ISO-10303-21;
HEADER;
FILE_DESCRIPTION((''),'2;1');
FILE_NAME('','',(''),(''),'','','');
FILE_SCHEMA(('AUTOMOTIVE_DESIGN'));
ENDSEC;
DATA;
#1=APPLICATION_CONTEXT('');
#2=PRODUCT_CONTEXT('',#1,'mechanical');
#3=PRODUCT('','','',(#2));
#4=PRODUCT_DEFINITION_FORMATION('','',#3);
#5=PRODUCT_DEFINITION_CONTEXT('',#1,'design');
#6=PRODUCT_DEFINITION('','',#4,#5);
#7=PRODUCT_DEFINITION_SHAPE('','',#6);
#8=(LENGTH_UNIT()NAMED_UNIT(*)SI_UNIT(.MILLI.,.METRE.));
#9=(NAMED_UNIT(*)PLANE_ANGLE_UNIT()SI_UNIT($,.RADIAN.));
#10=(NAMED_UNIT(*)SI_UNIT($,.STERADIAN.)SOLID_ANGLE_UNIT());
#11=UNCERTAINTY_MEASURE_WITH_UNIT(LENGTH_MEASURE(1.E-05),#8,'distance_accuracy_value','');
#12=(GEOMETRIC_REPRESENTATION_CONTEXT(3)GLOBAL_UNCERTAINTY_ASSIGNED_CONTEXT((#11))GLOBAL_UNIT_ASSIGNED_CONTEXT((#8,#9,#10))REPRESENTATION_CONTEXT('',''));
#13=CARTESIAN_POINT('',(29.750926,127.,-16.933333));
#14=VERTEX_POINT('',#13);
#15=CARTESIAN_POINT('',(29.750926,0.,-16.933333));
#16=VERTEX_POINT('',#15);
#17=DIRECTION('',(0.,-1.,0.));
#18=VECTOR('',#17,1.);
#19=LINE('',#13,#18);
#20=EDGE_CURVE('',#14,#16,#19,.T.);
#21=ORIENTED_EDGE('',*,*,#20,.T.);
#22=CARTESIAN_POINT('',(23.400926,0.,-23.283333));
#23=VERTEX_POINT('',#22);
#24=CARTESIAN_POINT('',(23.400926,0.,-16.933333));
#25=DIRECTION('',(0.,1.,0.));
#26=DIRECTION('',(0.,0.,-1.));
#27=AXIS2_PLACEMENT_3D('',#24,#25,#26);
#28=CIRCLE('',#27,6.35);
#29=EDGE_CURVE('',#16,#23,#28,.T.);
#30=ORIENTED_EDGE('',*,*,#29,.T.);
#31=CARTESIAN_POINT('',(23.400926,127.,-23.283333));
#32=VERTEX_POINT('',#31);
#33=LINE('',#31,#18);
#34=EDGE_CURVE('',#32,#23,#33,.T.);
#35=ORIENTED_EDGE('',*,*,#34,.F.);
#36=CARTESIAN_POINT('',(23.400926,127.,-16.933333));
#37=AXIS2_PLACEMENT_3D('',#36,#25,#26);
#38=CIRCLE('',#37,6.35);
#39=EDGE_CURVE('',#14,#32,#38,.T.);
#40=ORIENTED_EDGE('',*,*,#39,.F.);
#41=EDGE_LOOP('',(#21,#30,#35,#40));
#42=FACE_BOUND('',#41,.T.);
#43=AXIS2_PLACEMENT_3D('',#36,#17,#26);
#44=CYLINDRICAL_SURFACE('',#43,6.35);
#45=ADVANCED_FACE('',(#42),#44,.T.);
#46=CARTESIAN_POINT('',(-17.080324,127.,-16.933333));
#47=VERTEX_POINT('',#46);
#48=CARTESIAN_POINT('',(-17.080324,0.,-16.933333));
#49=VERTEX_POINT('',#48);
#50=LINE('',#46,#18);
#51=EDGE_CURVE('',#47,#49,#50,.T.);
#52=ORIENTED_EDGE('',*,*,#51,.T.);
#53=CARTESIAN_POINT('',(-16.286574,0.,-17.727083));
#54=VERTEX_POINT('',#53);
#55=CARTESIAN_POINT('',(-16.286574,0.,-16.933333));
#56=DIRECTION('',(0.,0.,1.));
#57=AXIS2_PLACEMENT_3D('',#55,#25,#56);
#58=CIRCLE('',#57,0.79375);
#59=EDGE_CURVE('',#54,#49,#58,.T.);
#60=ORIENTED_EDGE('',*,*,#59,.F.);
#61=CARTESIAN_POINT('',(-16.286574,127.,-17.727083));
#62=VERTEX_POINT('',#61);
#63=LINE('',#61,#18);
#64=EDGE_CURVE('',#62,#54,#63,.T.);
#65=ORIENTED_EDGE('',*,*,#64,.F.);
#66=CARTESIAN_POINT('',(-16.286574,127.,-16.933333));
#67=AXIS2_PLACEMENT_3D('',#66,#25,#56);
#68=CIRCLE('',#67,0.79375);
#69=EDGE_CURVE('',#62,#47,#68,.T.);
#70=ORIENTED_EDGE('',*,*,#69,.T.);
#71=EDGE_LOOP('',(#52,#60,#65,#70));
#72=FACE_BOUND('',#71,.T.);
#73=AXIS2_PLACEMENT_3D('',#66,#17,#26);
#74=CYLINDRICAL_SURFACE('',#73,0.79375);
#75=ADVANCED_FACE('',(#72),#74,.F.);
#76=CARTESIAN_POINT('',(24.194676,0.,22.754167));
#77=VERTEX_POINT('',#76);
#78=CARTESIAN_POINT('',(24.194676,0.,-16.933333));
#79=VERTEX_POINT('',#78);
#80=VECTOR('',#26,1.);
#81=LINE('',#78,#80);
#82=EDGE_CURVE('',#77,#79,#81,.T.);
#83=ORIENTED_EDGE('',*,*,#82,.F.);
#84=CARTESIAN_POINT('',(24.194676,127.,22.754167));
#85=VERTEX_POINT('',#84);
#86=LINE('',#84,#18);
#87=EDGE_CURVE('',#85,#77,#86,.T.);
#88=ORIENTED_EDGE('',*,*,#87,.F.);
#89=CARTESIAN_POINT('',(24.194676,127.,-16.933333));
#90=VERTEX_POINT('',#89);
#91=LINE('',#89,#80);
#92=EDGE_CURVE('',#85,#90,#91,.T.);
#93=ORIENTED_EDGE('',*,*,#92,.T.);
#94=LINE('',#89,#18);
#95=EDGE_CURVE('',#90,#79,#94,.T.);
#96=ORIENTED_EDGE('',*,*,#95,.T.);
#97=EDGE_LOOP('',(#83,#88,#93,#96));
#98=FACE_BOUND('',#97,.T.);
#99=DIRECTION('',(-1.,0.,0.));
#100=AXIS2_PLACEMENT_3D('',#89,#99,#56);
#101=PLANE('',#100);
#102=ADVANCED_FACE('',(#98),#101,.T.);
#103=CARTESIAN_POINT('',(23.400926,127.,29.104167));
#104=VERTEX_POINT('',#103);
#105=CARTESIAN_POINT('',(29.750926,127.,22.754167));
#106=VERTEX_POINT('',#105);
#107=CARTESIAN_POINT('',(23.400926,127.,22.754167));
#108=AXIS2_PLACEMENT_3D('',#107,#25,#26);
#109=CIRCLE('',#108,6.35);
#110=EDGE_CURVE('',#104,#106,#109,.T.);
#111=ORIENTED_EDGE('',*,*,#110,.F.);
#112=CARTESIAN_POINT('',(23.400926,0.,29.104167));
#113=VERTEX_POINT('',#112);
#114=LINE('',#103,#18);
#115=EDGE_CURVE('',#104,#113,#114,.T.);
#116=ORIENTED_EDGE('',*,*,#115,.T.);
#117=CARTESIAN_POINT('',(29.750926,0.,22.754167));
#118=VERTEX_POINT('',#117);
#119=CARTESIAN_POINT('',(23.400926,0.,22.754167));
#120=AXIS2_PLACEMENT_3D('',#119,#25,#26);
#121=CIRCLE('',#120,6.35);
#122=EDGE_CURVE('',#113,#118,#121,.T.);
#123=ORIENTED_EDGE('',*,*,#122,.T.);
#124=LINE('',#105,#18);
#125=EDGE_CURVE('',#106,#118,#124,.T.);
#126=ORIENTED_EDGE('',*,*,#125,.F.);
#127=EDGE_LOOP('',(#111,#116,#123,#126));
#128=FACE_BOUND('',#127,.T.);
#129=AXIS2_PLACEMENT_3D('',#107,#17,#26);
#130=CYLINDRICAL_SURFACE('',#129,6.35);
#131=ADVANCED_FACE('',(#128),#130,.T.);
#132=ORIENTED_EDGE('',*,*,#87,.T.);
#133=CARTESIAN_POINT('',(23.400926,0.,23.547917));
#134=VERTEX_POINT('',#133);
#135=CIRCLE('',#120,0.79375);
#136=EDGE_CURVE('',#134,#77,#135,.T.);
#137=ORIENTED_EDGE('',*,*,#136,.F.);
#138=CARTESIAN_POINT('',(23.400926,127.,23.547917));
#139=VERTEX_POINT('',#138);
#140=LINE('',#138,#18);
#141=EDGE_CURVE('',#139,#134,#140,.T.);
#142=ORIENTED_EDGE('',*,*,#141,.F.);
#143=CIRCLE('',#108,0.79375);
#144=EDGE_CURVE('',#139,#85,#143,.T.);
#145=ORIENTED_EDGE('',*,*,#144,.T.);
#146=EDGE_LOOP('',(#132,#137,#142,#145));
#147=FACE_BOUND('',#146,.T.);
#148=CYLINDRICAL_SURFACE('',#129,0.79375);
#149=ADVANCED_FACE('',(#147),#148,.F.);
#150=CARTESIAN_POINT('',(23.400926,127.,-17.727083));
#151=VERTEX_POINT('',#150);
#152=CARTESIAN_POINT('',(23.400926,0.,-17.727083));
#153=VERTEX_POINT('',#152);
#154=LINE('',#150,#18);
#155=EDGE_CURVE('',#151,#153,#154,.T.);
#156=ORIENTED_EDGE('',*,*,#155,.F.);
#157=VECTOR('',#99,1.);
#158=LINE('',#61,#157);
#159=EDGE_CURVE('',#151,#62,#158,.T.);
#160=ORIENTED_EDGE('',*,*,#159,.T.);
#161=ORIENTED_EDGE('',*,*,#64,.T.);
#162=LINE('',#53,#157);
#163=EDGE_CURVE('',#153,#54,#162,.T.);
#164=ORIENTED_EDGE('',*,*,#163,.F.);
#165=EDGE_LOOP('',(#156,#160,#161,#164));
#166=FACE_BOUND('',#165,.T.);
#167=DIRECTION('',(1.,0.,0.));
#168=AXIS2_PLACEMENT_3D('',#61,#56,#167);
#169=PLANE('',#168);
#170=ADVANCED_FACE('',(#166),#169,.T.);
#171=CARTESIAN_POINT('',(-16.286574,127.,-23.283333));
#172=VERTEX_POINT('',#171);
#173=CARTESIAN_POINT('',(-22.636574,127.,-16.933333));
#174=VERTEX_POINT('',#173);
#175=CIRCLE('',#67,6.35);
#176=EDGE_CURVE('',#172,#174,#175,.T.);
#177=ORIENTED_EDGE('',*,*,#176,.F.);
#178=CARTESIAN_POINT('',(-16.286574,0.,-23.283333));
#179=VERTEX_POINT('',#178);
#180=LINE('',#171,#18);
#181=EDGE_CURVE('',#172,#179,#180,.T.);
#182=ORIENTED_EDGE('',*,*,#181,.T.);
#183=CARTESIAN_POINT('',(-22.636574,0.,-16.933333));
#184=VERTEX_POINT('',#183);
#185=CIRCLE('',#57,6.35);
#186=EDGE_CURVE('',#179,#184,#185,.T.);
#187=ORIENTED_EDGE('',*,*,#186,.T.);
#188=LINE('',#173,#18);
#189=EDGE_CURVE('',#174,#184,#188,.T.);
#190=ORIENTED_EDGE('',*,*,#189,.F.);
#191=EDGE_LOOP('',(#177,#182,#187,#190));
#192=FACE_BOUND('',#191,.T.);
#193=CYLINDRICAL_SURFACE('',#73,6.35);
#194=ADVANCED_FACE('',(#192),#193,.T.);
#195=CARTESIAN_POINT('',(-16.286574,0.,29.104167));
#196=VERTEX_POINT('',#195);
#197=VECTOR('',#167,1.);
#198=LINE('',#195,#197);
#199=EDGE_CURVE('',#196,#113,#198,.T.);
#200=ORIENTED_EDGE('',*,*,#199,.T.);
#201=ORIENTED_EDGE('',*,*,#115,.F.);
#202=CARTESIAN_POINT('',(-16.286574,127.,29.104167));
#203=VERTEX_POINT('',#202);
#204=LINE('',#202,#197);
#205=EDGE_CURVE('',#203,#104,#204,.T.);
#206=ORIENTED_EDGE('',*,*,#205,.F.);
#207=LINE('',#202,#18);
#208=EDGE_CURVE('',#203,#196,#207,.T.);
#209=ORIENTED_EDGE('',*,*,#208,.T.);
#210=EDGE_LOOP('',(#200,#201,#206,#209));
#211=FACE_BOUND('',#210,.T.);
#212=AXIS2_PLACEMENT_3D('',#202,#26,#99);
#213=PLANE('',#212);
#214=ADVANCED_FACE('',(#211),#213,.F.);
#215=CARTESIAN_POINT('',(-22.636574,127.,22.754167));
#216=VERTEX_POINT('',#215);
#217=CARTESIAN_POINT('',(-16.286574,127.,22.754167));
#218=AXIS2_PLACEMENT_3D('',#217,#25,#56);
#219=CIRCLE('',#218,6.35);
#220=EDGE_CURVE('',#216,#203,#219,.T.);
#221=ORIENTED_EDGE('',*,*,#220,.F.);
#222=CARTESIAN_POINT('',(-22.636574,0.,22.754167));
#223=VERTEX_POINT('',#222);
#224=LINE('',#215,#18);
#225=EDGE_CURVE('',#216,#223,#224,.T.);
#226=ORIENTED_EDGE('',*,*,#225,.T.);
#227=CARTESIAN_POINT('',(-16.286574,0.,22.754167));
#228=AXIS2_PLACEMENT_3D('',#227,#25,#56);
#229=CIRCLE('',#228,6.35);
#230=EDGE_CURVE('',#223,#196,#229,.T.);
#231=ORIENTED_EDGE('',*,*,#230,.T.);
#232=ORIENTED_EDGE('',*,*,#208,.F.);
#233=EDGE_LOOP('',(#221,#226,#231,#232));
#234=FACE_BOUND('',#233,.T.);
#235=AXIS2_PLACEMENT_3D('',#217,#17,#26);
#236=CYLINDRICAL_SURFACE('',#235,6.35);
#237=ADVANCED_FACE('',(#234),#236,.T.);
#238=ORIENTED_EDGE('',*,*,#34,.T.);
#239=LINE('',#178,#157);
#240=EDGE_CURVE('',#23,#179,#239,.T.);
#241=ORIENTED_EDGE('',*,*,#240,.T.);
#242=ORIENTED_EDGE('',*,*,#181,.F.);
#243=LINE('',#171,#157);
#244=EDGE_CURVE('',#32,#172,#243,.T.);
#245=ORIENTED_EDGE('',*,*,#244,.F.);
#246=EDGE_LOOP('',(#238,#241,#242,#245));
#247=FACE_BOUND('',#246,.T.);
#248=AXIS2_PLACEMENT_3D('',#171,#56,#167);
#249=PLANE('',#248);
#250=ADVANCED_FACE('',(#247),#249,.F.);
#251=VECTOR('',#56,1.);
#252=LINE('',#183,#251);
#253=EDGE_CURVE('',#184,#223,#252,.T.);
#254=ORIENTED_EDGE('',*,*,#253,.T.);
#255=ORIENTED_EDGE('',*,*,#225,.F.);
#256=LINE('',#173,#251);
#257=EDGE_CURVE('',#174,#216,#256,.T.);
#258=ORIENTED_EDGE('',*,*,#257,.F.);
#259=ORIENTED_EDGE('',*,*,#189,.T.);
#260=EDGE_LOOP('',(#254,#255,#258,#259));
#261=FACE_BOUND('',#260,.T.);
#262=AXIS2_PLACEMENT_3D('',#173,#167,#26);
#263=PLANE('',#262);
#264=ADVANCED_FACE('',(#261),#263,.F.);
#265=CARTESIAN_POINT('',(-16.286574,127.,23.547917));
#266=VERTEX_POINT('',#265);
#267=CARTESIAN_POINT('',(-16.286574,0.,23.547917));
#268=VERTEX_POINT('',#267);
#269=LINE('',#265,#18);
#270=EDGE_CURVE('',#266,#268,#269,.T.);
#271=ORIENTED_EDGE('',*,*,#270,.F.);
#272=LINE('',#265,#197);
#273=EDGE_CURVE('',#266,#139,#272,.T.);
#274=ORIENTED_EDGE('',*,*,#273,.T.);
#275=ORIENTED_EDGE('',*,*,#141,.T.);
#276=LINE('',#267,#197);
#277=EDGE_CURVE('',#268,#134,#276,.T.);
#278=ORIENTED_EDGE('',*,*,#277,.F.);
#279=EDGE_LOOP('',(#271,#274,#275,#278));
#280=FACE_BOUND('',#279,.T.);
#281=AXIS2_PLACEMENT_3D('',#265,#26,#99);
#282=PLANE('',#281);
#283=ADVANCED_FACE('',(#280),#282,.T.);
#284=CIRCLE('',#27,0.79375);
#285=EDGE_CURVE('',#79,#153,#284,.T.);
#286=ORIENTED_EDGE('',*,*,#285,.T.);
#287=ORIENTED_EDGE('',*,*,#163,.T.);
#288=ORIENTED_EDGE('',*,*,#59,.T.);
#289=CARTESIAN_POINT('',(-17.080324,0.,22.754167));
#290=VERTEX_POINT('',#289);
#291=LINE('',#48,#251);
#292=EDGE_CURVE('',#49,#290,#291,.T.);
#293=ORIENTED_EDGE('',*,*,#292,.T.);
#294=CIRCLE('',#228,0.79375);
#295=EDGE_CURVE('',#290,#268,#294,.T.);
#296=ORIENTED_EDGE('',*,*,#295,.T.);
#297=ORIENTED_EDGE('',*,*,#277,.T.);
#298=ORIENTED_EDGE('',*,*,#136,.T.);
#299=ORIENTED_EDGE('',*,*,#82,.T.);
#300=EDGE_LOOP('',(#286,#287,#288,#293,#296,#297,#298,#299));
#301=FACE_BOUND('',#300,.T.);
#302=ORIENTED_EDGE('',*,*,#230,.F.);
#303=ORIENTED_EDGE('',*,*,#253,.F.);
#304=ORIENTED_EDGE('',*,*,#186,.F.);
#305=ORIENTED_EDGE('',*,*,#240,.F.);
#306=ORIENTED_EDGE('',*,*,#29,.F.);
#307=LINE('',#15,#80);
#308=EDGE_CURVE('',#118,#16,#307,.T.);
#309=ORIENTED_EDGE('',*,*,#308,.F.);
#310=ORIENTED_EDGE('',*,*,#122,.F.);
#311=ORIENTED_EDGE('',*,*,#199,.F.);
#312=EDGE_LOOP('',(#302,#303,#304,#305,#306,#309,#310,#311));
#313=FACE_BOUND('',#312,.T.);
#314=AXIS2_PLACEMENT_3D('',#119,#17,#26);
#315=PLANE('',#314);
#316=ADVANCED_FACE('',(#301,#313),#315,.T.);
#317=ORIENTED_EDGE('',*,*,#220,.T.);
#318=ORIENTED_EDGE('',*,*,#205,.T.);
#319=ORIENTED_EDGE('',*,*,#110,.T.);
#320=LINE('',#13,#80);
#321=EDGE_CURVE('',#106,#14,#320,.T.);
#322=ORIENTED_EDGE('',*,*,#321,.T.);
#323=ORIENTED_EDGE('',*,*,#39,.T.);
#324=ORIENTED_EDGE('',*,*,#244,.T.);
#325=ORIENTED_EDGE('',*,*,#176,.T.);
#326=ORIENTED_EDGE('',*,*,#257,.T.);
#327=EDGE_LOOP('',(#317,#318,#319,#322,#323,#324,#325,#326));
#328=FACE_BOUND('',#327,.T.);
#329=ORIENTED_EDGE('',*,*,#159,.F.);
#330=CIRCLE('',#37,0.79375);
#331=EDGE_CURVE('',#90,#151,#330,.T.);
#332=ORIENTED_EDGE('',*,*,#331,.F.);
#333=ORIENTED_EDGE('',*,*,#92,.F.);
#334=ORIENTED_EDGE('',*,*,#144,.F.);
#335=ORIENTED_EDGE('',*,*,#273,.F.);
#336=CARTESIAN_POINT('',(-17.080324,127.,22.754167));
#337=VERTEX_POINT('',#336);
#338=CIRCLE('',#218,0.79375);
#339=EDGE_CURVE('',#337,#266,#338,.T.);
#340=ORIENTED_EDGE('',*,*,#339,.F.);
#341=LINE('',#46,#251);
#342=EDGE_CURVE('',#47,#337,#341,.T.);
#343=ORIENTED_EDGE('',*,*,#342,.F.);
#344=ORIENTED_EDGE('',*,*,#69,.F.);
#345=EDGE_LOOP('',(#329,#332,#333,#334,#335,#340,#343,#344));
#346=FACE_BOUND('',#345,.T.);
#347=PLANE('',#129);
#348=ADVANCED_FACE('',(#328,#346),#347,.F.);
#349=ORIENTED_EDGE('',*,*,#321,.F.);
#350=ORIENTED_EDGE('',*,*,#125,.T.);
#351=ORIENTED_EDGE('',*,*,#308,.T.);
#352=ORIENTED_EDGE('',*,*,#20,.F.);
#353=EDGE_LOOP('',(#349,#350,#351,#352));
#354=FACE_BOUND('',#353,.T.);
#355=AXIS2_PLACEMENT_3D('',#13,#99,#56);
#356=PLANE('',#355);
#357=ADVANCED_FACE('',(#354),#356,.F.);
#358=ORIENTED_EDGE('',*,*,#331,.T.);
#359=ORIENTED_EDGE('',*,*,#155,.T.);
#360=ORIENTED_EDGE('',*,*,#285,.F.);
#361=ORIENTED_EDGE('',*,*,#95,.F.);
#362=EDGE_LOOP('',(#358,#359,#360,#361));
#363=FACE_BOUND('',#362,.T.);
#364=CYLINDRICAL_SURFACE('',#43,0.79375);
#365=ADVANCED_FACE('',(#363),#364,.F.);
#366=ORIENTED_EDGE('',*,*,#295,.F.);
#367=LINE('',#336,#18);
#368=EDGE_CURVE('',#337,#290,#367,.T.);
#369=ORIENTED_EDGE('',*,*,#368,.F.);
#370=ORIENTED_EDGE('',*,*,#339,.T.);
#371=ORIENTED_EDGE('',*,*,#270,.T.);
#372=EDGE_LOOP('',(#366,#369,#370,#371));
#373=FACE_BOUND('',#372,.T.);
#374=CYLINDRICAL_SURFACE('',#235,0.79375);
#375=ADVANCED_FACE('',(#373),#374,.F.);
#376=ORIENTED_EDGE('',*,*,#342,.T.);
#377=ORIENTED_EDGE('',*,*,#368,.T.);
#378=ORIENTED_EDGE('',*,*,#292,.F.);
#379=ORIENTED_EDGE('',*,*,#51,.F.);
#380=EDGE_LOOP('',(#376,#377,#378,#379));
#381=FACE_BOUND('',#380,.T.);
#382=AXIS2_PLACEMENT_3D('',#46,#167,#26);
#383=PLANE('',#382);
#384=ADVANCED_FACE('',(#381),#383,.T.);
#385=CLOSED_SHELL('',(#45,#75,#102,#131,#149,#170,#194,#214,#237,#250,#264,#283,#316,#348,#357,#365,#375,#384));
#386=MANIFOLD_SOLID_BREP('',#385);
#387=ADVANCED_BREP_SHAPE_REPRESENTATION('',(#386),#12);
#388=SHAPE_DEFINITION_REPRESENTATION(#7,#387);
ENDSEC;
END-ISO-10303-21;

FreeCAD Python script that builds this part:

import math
import FreeCAD as App
import Part
import Sketcher
from FreeCAD import Vector
Q = App.Units.Quantity

doc = App.newDocument("Part")
body = doc.addObject("PartDesign::Body", "Body")

# Sketch on XZ plane
sketch1 = body.newObject("Sketcher::SketchObject", "Sketch")
sketch1.AttachmentSupport = (doc.getObject("XZ_Plane"), [""])
sketch1.MapMode = "FlatFace"
sketch1.addGeometry([
    Part.LineSegment(Vector(23.4, -23.3, 0), Vector(-16.3, -23.3, 0)),  # 0
    Part.ArcOfCircle(Part.Circle(Vector(-16.3, -16.9, 0), Vector(0, 0, 1), 6.3), math.radians(180), math.radians(270)),  # 1
    Part.LineSegment(Vector(-22.6, -16.9, 0), Vector(-22.6, 22.8, 0)),  # 2
    Part.ArcOfCircle(Part.Circle(Vector(-16.3, 22.8, 0), Vector(0, 0, 1), 6.3), math.radians(90), math.radians(180)),  # 3
    Part.LineSegment(Vector(-16.3, 29.1, 0), Vector(23.4, 29.1, 0)),  # 4
    Part.ArcOfCircle(Part.Circle(Vector(23.4, 22.8, 0), Vector(0, 0, 1), 6.4), math.radians(0), math.radians(90)),  # 5
    Part.LineSegment(Vector(29.8, 22.8, 0), Vector(29.8, -16.9, 0)),  # 6
    Part.ArcOfCircle(Part.Circle(Vector(23.4, -16.9, 0), Vector(0, 0, 1), 6.3), math.radians(-90), math.radians(0)),  # 7
    Part.LineSegment(Vector(24.2, -16.9, 0), Vector(24.2, 22.8, 0)),  # 8
    Part.ArcOfCircle(Part.Circle(Vector(23.4, 22.8, 0), Vector(0, 0, 1), 0.8), math.radians(0), math.radians(90)),  # 9
    Part.LineSegment(Vector(23.4, 23.5, 0), Vector(-16.3, 23.5, 0)),  # 10
    Part.ArcOfCircle(Part.Circle(Vector(-16.3, 22.8, 0), Vector(0, 0, 1), 0.8), math.radians(90), math.radians(180)),  # 11
    Part.LineSegment(Vector(-17.1, 22.8, 0), Vector(-17.1, -16.9, 0)),  # 12
    Part.ArcOfCircle(Part.Circle(Vector(-16.3, -16.9, 0), Vector(0, 0, 1), 0.8), math.radians(180), math.radians(270)),  # 13
    Part.LineSegment(Vector(-16.3, -17.7, 0), Vector(23.4, -17.7, 0)),  # 14
    Part.ArcOfCircle(Part.Circle(Vector(23.4, -16.9, 0), Vector(0, 0, 1), 0.8), math.radians(-90), math.radians(0)),  # 15
], False)
sketch1.addConstraint([
    Sketcher.Constraint("Tangent", 0, 2, 1, 2),
    Sketcher.Constraint("Tangent", 1, 1, 2, 1),
    Sketcher.Constraint("Tangent", 2, 2, 3, 2),
    Sketcher.Constraint("Tangent", 3, 1, 4, 1),
    Sketcher.Constraint("Tangent", 4, 2, 5, 2),
    Sketcher.Constraint("Tangent", 5, 1, 6, 1),
    Sketcher.Constraint("Tangent", 6, 2, 7, 2),
    Sketcher.Constraint("Tangent", 7, 1, 0, 1),
    Sketcher.Constraint("Tangent", 8, 2, 9, 1),
    Sketcher.Constraint("Tangent", 9, 2, 10, 1),
    Sketcher.Constraint("Tangent", 10, 2, 11, 1),
    Sketcher.Constraint("Tangent", 11, 2, 12, 1),
    Sketcher.Constraint("Tangent", 12, 2, 13, 1),
    Sketcher.Constraint("Tangent", 13, 2, 14, 1),
    Sketcher.Constraint("Tangent", 14, 2, 15, 1),
    Sketcher.Constraint("Tangent", 15, 2, 8, 1),
    Sketcher.Constraint("Horizontal", 0),
    Sketcher.Constraint("Vertical", 2),
    Sketcher.Constraint("Horizontal", 4),
    Sketcher.Constraint("Vertical", 6),
    Sketcher.Constraint("Vertical", 8),
    Sketcher.Constraint("Horizontal", 10),
    Sketcher.Constraint("Vertical", 12),
    Sketcher.Constraint("Horizontal", 14),
    Sketcher.Constraint("Coincident", 9, 3, 5, 3),
    Sketcher.Constraint("Coincident", 11, 3, 3, 3),
    Sketcher.Constraint("Coincident", 13, 3, 1, 3),
    Sketcher.Constraint("Equal", 1, 3),
    Sketcher.Constraint("Equal", 3, 5),
    Sketcher.Constraint("Equal", 5, 7),
    Sketcher.Constraint("Equal", 13, 15),
    Sketcher.Constraint("Equal", 14, 2),
    Sketcher.Constraint("Radius", 1, Q("0.25 in")),
    Sketcher.Constraint("Radius", 9, Q("0.03125 in")),
    Sketcher.Constraint("DistanceX", 0, 2, 0, 1, Q("1.5625 in")),
    Sketcher.Constraint("DistanceX", 1, 3, -1, 1, 16.286574),
    Sketcher.Constraint("DistanceY", 1, 3, -1, 1, 16.933333),
])
pad1 = body.newObject("PartDesign::Pad", "Pad")
pad1.Profile = sketch1
pad1.Length = Q("5 in")
pad1.Reversed = True

doc.recompute()
